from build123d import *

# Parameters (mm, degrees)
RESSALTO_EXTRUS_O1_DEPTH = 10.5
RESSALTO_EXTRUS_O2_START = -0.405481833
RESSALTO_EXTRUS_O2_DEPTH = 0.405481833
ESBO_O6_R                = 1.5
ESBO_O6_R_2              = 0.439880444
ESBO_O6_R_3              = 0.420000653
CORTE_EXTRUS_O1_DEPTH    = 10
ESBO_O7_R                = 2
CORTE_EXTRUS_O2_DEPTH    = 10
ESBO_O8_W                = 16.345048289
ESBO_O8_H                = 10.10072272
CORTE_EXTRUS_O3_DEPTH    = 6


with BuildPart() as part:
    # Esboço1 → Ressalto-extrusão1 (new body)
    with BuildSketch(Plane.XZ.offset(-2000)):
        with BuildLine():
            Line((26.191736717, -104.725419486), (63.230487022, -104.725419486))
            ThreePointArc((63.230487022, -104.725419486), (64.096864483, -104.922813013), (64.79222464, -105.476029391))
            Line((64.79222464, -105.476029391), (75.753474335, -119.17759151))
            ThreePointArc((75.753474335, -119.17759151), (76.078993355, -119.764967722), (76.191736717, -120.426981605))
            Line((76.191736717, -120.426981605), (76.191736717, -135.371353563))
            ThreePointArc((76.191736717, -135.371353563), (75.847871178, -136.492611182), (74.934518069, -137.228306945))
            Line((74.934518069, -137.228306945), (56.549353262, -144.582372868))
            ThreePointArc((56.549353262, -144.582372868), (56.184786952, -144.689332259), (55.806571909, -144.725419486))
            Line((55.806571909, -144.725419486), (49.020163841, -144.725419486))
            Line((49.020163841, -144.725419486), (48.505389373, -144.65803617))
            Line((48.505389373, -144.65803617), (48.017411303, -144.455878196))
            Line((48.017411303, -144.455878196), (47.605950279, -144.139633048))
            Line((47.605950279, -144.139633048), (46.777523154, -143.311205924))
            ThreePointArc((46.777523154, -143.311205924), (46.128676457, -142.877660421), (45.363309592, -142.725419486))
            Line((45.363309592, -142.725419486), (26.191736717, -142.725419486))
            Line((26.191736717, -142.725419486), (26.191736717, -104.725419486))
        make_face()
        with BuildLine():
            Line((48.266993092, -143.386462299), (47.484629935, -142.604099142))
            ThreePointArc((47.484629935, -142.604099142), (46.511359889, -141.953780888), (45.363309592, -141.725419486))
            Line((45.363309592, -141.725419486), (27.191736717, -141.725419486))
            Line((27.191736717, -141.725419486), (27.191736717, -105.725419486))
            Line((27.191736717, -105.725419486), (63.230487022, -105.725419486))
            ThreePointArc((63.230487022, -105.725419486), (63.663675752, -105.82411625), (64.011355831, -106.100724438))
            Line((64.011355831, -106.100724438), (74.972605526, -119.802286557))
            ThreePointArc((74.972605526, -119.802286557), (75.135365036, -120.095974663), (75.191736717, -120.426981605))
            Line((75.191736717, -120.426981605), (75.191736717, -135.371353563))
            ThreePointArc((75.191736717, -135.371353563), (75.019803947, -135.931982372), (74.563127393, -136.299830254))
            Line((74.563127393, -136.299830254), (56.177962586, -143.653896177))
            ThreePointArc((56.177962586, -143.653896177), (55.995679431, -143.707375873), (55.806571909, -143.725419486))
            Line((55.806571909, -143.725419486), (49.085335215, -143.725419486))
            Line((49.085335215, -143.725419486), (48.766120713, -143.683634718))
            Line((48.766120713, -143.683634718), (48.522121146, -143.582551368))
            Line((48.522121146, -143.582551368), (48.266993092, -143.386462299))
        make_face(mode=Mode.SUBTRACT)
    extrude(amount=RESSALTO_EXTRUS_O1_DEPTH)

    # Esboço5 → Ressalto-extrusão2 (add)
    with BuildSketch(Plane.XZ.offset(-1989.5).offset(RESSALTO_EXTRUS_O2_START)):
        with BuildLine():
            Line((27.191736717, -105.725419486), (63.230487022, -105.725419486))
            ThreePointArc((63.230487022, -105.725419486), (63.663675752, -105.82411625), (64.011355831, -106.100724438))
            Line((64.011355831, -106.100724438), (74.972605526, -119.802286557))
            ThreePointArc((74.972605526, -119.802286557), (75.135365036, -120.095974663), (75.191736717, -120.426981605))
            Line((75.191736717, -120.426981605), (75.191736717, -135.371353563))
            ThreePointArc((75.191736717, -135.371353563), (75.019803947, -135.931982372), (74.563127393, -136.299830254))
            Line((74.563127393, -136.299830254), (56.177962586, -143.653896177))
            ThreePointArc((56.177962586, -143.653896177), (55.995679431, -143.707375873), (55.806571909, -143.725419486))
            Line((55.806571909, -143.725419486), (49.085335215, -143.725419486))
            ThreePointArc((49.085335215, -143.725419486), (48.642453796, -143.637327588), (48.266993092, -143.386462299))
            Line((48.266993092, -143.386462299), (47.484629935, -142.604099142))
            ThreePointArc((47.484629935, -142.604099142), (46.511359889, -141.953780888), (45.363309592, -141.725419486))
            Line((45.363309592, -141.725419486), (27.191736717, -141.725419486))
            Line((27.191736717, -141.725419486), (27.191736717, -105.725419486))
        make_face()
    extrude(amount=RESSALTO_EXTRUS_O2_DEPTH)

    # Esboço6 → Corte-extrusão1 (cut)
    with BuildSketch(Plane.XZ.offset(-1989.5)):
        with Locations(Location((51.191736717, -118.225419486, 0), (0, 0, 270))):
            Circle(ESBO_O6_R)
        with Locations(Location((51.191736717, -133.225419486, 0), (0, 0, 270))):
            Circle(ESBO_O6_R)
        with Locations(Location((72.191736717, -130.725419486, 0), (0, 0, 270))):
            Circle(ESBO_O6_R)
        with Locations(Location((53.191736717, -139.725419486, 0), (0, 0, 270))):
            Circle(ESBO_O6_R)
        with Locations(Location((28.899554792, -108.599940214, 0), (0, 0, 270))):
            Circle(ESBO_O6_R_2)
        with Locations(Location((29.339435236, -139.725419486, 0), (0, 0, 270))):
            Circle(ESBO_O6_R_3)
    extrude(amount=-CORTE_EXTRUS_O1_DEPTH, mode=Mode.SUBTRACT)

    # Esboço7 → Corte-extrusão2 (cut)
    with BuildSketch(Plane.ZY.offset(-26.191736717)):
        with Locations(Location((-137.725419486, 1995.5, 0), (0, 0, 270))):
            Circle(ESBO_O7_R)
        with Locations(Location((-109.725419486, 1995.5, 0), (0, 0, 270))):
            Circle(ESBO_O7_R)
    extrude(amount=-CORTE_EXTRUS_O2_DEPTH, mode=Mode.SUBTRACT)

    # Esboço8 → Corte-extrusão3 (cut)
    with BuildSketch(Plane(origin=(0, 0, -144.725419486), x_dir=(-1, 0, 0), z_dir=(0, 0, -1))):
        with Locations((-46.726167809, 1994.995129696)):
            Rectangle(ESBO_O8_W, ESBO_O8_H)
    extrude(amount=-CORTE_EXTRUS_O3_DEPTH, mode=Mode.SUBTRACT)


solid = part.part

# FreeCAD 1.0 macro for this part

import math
import FreeCAD as App
import Part
import Sketcher

V = App.Vector
Q = App.Units.Quantity

doc = App.newDocument("Part")
body = doc.addObject("PartDesign::Body", "Body")

# Sketch on XZ plane
sketch1 = body.newObject("Sketcher::SketchObject", "Sketch")
sketch1.AttachmentSupport = (doc.getObject("XZ_Plane"), [""])
sketch1.MapMode = "FlatFace"
sketch1.AttachmentOffset = App.Placement(V(0, 0, -2000), App.Rotation())
sketch1.addGeometry(Part.LineSegment(V(63.230487, -104.725419, 0), V(26.191737, -104.725419, 0)), False)
sketch1.addGeometry(Part.LineSegment(V(26.191737, -104.725419, 0), V(26.191737, -142.725419, 0)), False)
sketch1.addGeometry(Part.LineSegment(V(26.191737, -142.725419, 0), V(45.36331, -142.725419, 0)), False)
sketch1.addGeometry(Part.ArcOfCircle(Part.Circle(V(45.36331, -144.725419, 0), V(0, 0, 1), 2), math.radians(45), math.radians(90)), False)
sketch1.addGeometry(Part.LineSegment(V(46.777523, -143.311206, 0), V(47.60595, -144.139633, 0)), False)
sketch1.addGeometry(Part.LineSegment(V(47.60595, -144.139633, 0), V(48.017411, -144.455878, 0)), False)
sketch1.addGeometry(Part.LineSegment(V(48.017411, -144.455878, 0), V(48.505389, -144.658036, 0)), False)
sketch1.addGeometry(Part.LineSegment(V(48.505389, -144.658036, 0), V(49.020164, -144.725419, 0)), False)
sketch1.addGeometry(Part.LineSegment(V(49.020164, -144.725419, 0), V(55.806572, -144.725419, 0)), False)
sketch1.addGeometry(Part.ArcOfCircle(Part.Circle(V(55.806572, -142.725419, 0), V(0, 0, 1), 2), math.radians(-90), math.radians(-68.198591)), False)
sketch1.addGeometry(Part.LineSegment(V(56.549353, -144.582373, 0), V(74.934518, -137.228307, 0)), False)
sketch1.addGeometry(Part.ArcOfCircle(Part.Circle(V(74.191737, -135.371354, 0), V(0, 0, 1), 2), math.radians(-68.198591), math.radians(0)), False)
sketch1.addGeometry(Part.LineSegment(V(76.191737, -135.371354, 0), V(76.191737, -120.426982, 0)), False)
sketch1.addGeometry(Part.ArcOfCircle(Part.Circle(V(74.191737, -120.426982, 0), V(0, 0, 1), 2), math.radians(0), math.radians(38.659808)), False)
sketch1.addGeometry(Part.LineSegment(V(75.753474, -119.177592, 0), V(64.792225, -105.476029, 0)), False)
sketch1.addGeometry(Part.ArcOfCircle(Part.Circle(V(63.230487, -106.725419, 0), V(0, 0, 1), 2), math.radians(38.659808), math.radians(90)), False)
sketch1.addGeometry(Part.LineSegment(V(48.266993, -143.386462, 0), V(47.48463, -142.604099, 0)), False)
sketch1.addGeometry(Part.ArcOfCircle(Part.Circle(V(45.36331, -144.725419, 0), V(0, 0, 1), 3), math.radians(45), math.radians(90)), False)
sketch1.addGeometry(Part.LineSegment(V(45.36331, -141.725419, 0), V(27.191737, -141.725419, 0)), False)
sketch1.addGeometry(Part.LineSegment(V(27.191737, -141.725419, 0), V(27.191737, -105.725419, 0)), False)
sketch1.addGeometry(Part.LineSegment(V(27.191737, -105.725419, 0), V(63.230487, -105.725419, 0)), False)
sketch1.addGeometry(Part.ArcOfCircle(Part.Circle(V(63.230487, -106.725419, 0), V(0, 0, 1), 1), math.radians(38.659808), math.radians(90)), False)
sketch1.addGeometry(Part.LineSegment(V(64.011356, -106.100724, 0), V(74.972606, -119.802287, 0)), False)
sketch1.addGeometry(Part.ArcOfCircle(Part.Circle(V(74.191737, -120.426982, 0), V(0, 0, 1), 1), math.radians(0), math.radians(38.659808)), False)
sketch1.addGeometry(Part.LineSegment(V(75.191737, -120.426982, 0), V(75.191737, -135.371354, 0)), False)
sketch1.addGeometry(Part.ArcOfCircle(Part.Circle(V(74.191737, -135.371354, 0), V(0, 0, 1), 1), math.radians(-68.19859), math.radians(0)), False)
sketch1.addGeometry(Part.LineSegment(V(74.563127, -136.29983, 0), V(56.177963, -143.653896, 0)), False)
sketch1.addGeometry(Part.ArcOfCircle(Part.Circle(V(55.806572, -142.725419, 0), V(0, 0, 1), 1), math.radians(-90), math.radians(-68.19859)), False)
sketch1.addGeometry(Part.LineSegment(V(55.806572, -143.725419, 0), V(49.085335, -143.725419, 0)), False)
sketch1.addGeometry(Part.LineSegment(V(49.085335, -143.725419, 0), V(48.766121, -143.683635, 0)), False)
sketch1.addGeometry(Part.LineSegment(V(48.766121, -143.683635, 0), V(48.522121, -143.582551, 0)), False)
sketch1.addGeometry(Part.LineSegment(V(48.522121, -143.582551, 0), V(48.266993, -143.386462, 0)), False)
sketch1.addConstraint(Sketcher.Constraint("Coincident", 0, 2, 1, 1))
sketch1.addConstraint(Sketcher.Constraint("Coincident", 1, 2, 2, 1))
sketch1.addConstraint(Sketcher.Constraint("Coincident", 2, 2, 3, 2))
sketch1.addConstraint(Sketcher.Constraint("Coincident", 3, 1, 4, 1))
sketch1.addConstraint(Sketcher.Constraint("Coincident", 4, 2, 5, 1))
sketch1.addConstraint(Sketcher.Constraint("Coincident", 5, 2, 6, 1))
sketch1.addConstraint(Sketcher.Constraint("Coincident", 6, 2, 7, 1))
sketch1.addConstraint(Sketcher.Constraint("Coincident", 7, 2, 8, 1))
sketch1.addConstraint(Sketcher.Constraint("Coincident", 8, 2, 9, 1))
sketch1.addConstraint(Sketcher.Constraint("Coincident", 9, 2, 10, 1))
sketch1.addConstraint(Sketcher.Constraint("Coincident", 10, 2, 11, 1))
sketch1.addConstraint(Sketcher.Constraint("Coincident", 11, 2, 12, 1))
sketch1.addConstraint(Sketcher.Constraint("Coincident", 12, 2, 13, 1))
sketch1.addConstraint(Sketcher.Constraint("Coincident", 13, 2, 14, 1))
sketch1.addConstraint(Sketcher.Constraint("Coincident", 14, 2, 15, 1))
sketch1.addConstraint(Sketcher.Constraint("Coincident", 15, 2, 0, 1))
sketch1.addConstraint(Sketcher.Constraint("Coincident", 16, 2, 17, 1))
sketch1.addConstraint(Sketcher.Constraint("Coincident", 17, 2, 18, 1))
sketch1.addConstraint(Sketcher.Constraint("Coincident", 18, 2, 19, 1))
sketch1.addConstraint(Sketcher.Constraint("Coincident", 19, 2, 20, 1))
sketch1.addConstraint(Sketcher.Constraint("Coincident", 20, 2, 21, 2))
sketch1.addConstraint(Sketcher.Constraint("Coincident", 21, 1, 22, 1))
sketch1.addConstraint(Sketcher.Constraint("Coincident", 22, 2, 23, 2))
sketch1.addConstraint(Sketcher.Constraint("Coincident", 23, 1, 24, 1))
sketch1.addConstraint(Sketcher.Constraint("Coincident", 24, 2, 25, 2))
sketch1.addConstraint(Sketcher.Constraint("Coincident", 25, 1, 26, 1))
sketch1.addConstraint(Sketcher.Constraint("Coincident", 26, 2, 27, 2))
sketch1.addConstraint(Sketcher.Constraint("Coincident", 27, 1, 28, 1))
sketch1.addConstraint(Sketcher.Constraint("Coincident", 28, 2, 29, 1))
sketch1.addConstraint(Sketcher.Constraint("Coincident", 29, 2, 30, 1))
sketch1.addConstraint(Sketcher.Constraint("Coincident", 30, 2, 31, 1))
sketch1.addConstraint(Sketcher.Constraint("Coincident", 31, 2, 16, 1))
sketch1.addConstraint(Sketcher.Constraint("Horizontal", 0))
sketch1.addConstraint(Sketcher.Constraint("Vertical", 1))
sketch1.addConstraint(Sketcher.Constraint("Horizontal", 2))
sketch1.addConstraint(Sketcher.Constraint("Horizontal", 8))
sketch1.addConstraint(Sketcher.Constraint("Vertical", 12))
sketch1.addConstraint(Sketcher.Constraint("Horizontal", 18))
sketch1.addConstraint(Sketcher.Constraint("Vertical", 19))
sketch1.addConstraint(Sketcher.Constraint("Horizontal", 20))
sketch1.addConstraint(Sketcher.Constraint("Vertical", 24))
sketch1.addConstraint(Sketcher.Constraint("Horizontal", 28))
sketch1.addConstraint(Sketcher.Constraint("Coincident", 17, 3, 3, 3))
sketch1.addConstraint(Sketcher.Constraint("Coincident", 21, 3, 15, 3))
sketch1.addConstraint(Sketcher.Constraint("Coincident", 23, 3, 13, 3))
sketch1.addConstraint(Sketcher.Constraint("Coincident", 25, 3, 11, 3))
sketch1.addConstraint(Sketcher.Constraint("Coincident", 27, 3, 9, 3))
sketch1.addConstraint(Sketcher.Constraint("Radius", 3, 2.0))
sketch1.addConstraint(Sketcher.Constraint("Radius", 9, 2.0))
sketch1.addConstraint(Sketcher.Constraint("Radius", 11, 2.0))
sketch1.addConstraint(Sketcher.Constraint("Radius", 13, 2.0))
sketch1.addConstraint(Sketcher.Constraint("Radius", 15, 2.0))
sketch1.addConstraint(Sketcher.Constraint("Radius", 17, 3.0))
sketch1.addConstraint(Sketcher.Constraint("Radius", 21, 1.0))
sketch1.addConstraint(Sketcher.Constraint("Radius", 23, 1.0))
sketch1.addConstraint(Sketcher.Constraint("Radius", 27, 1.0))
sketch1.addConstraint(Sketcher.Constraint("DistanceY", 1, 2, 1, 1, 38.0))
sketch1.addConstraint(Sketcher.Constraint("DistanceY", 3, 3, 9, 3, 2.0))
sketch1.addConstraint(Sketcher.Constraint("DistanceX", 1, 2, 18, 2, 1.0))
sketch1.addConstraint(Sketcher.Constraint("DistanceY", 4, 2, 29, 2, 0.455998))
sketch1.addConstraint(Sketcher.Constraint("DistanceX", 30, 2, 29, 2, 0.244))
sketch1.addConstraint(Sketcher.Constraint("DistanceX", 0, 2, 0, 1, 37.03875))
sketch1.addConstraint(Sketcher.Constraint("DistanceX", 8, 1, 8, 2, 6.786408))
sketch1.addConstraint(Sketcher.Constraint("DistanceX", 20, 1, 20, 2, 36.03875))
sketch1.addConstraint(Sketcher.Constraint("DistanceY", 12, 1, 12, 2, 14.944372))
sketch1.addConstraint(Sketcher.Constraint("DistanceY", 24, 2, 24, 1, 14.944372))
sketch1.addConstraint(Sketcher.Constraint("DistanceY", 16, 2, -1, 1, 142.604099))
sketch1.addConstraint(Sketcher.Constraint("DistanceX", 17, 3, 5, 2, 2.654102))
sketch1.addConstraint(Sketcher.Constraint("DistanceX", 2, 2, 5, 2, 2.654102))
sketch1.addConstraint(Sketcher.Constraint("DistanceX", 7, 2, 26, 2, 7.157799))
sketch1.addConstraint(Sketcher.Constraint("DistanceY", 6, 2, 29, 2, 0.974401))
sketch1.addConstraint(Sketcher.Constraint("Distance", 5, 0.518952))
sketch1.addConstraint(Sketcher.Constraint("Distance", 10, 19.801428))
sketch1.addConstraint(Sketcher.Constraint("Distance", 14, 17.546561))
sketch1.addConstraint(Sketcher.Constraint("Distance", 16, 1.106429))
sketch1.addConstraint(Sketcher.Constraint("Distance", 22, 17.546561))
sketch1.addConstraint(Sketcher.Constraint("Distance", 26, 19.801428))
sketch1.addConstraint(Sketcher.Constraint("Distance", 30, 0.264109))
sketch1.addConstraint(Sketcher.Constraint("Distance", 31, 0.321778))
sketch1.addConstraint(Sketcher.Constraint("DistanceX", 2, 1, 2, 2, 19.171573))
sketch1.addConstraint(Sketcher.Constraint("DistanceX", 18, 2, 18, 1, 18.171573))
sketch1.addConstraint(Sketcher.Constraint("DistanceX", 28, 2, 28, 1, 6.721237))
sketch1.addConstraint(Sketcher.Constraint("DistanceX", -1, 1, 3, 3, 45.36331))
sketch1.addConstraint(Sketcher.Constraint("DistanceY", 3, 3, -1, 1, 144.725419))
sketch1.addConstraint(Sketcher.Constraint("DistanceX", -1, 1, 9, 3, 55.806572))
sketch1.addConstraint(Sketcher.Constraint("DistanceY", 13, 3, -1, 1, 120.426982))
sketch1.addConstraint(Sketcher.Constraint("DistanceX", -1, 1, 4, 2, 47.60595))
sketch1.addConstraint(Sketcher.Constraint("DistanceY", 5, 2, -1, 1, 144.455878))
sketch1.addConstraint(Sketcher.Constraint("DistanceX", -1, 1, 6, 2, 48.505389))
sketch1.addConstraint(Sketcher.Constraint("DistanceX", -1, 1, 8, 2, 55.806572))
sketch1.addConstraint(Sketcher.Constraint("DistanceX", -1, 1, 10, 2, 74.934518))
sketch1.addConstraint(Sketcher.Constraint("DistanceY", 12, 2, -1, 1, 120.426982))
sketch1.addConstraint(Sketcher.Constraint("DistanceY", 13, 2, -1, 1, 119.177592))
sketch1.addConstraint(Sketcher.Constraint("DistanceY", 14, 2, -1, 1, 105.476029))
sketch1.addConstraint(Sketcher.Constraint("DistanceY", 23, 1, -1, 1, 120.426982))
sketch1.addConstraint(Sketcher.Constraint("DistanceY", 25, 1, -1, 1, 136.29983))
sketch1.addConstraint(Sketcher.Constraint("DistanceX", -1, 1, 27, 1, 55.806572))
sketch1.addConstraint(Sketcher.Constraint("DistanceX", -1, 1, 29, 2, 48.766121))
sketch1.addConstraint(Sketcher.Constraint("DistanceY", 11, 3, 13, 3, 14.944372))
sketch1.addConstraint(Sketcher.Constraint("DistanceX", 3, 1, 9, 3, 9.029049))
sketch1.addConstraint(Sketcher.Constraint("DistanceX", 20, 2, 21, 1, 0.780869))
pad1 = body.newObject("PartDesign::Pad", "Pad")
pad1.Profile = sketch1
pad1.Length = 10.5

# Sketch on XZ plane
sketch2 = body.newObject("Sketcher::SketchObject", "Sketch001")
sketch2.AttachmentSupport = (doc.getObject("XZ_Plane"), [""])
sketch2.MapMode = "FlatFace"
sketch2.AttachmentOffset = App.Placement(V(0, 0, -1989.905482), App.Rotation())
sketch2.addGeometry(Part.LineSegment(V(63.23, -105.73, 0), V(27.19, -105.73, 0)), False)
sketch2.addGeometry(Part.LineSegment(V(27.19, -105.73, 0), V(27.19, -141.73, 0)), False)
sketch2.addGeometry(Part.LineSegment(V(27.19, -141.73, 0), V(45.36, -141.73, 0)), False)
sketch2.addGeometry(Part.ArcOfCircle(Part.Circle(V(45.36, -144.73, 0), V(0, 0, 1), 3), math.radians(45), math.radians(90)), False)
sketch2.addGeometry(Part.LineSegment(V(47.48, -142.6, 0), V(48.27, -143.39, 0)), False)
sketch2.addGeometry(Part.ArcOfCircle(Part.Circle(V(49.09, -142.57, 0), V(0, 0, 1), 1.16), math.radians(-135), math.radians(-90)), False)
sketch2.addGeometry(Part.LineSegment(V(49.09, -143.73, 0), V(55.81, -143.73, 0)), False)
sketch2.addGeometry(Part.ArcOfCircle(Part.Circle(V(55.81, -142.73, 0), V(0, 0, 1), 1), math.radians(-90), math.radians(-68)), False)
sketch2.addGeometry(Part.LineSegment(V(56.18, -143.65, 0), V(74.56, -136.3, 0)), False)
sketch2.addGeometry(Part.ArcOfCircle(Part.Circle(V(74.19, -135.37, 0), V(0, 0, 1), 1), math.radians(-68), math.radians(0)), False)
sketch2.addGeometry(Part.LineSegment(V(75.19, -135.37, 0), V(75.19, -120.43, 0)), False)
sketch2.addGeometry(Part.ArcOfCircle(Part.Circle(V(74.19, -120.43, 0), V(0, 0, 1), 1), math.radians(0), math.radians(39)), False)
sketch2.addGeometry(Part.LineSegment(V(74.97, -119.8, 0), V(64.01, -106.1, 0)), False)
sketch2.addGeometry(Part.ArcOfCircle(Part.Circle(V(63.23, -106.73, 0), V(0, 0, 1), 1), math.radians(39), math.radians(90)), False)
sketch2.addConstraint(Sketcher.Constraint("Coincident", 0, 2, 1, 1))
sketch2.addConstraint(Sketcher.Constraint("Coincident", 1, 2, 2, 1))
sketch2.addConstraint(Sketcher.Constraint("Tangent", 2, 2, 3, 2))
sketch2.addConstraint(Sketcher.Constraint("Tangent", 3, 1, 4, 1))
sketch2.addConstraint(Sketcher.Constraint("Coincident", 4, 2, 5, 1))
sketch2.addConstraint(Sketcher.Constraint("Tangent", 5, 2, 6, 1))
sketch2.addConstraint(Sketcher.Constraint("Tangent", 6, 2, 7, 1))
sketch2.addConstraint(Sketcher.Constraint("Tangent", 7, 2, 8, 1))
sketch2.addConstraint(Sketcher.Constraint("Tangent", 8, 2, 9, 1))
sketch2.addConstraint(Sketcher.Constraint("Tangent", 9, 2, 10, 1))
sketch2.addConstraint(Sketcher.Constraint("Tangent", 10, 2, 11, 1))
sketch2.addConstraint(Sketcher.Constraint("Tangent", 11, 2, 12, 1))
sketch2.addConstraint(Sketcher.Constraint("Tangent", 12, 2, 13, 1))
sketch2.addConstraint(Sketcher.Constraint("Tangent", 13, 2, 0, 1))
sketch2.addConstraint(Sketcher.Constraint("Horizontal", 0))
sketch2.addConstraint(Sketcher.Constraint("Vertical", 1))
sketch2.addConstraint(Sketcher.Constraint("Horizontal", 2))
sketch2.addConstraint(Sketcher.Constraint("Horizontal", 6))
sketch2.addConstraint(Sketcher.Constraint("Vertical", 10))
sketch2.addConstraint(Sketcher.Constraint("Equal", 7, 9))
sketch2.addConstraint(Sketcher.Constraint("Equal", 9, 11))
sketch2.addConstraint(Sketcher.Constraint("Equal", 11, 13))
sketch2.addConstraint(Sketcher.Constraint("Radius", 3, 3.0))
sketch2.addConstraint(Sketcher.Constraint("Radius", 7, 1.0))
sketch2.addConstraint(Sketcher.Constraint("DistanceY", 1, 2, 1, 1, 36.0))
sketch2.addConstraint(Sketcher.Constraint("Angle", 4, Q("-45 deg")))
sketch2.addConstraint(Sketcher.Constraint("DistanceY", 3, 3, 7, 3, 2.0))
sketch2.addConstraint(Sketcher.Constraint("DistanceX", 0, 2, 11, 3, 47.0))
sketch2.addConstraint(Sketcher.Constraint("Radius", 5, 1.157338))
sketch2.addConstraint(Sketcher.Constraint("DistanceX", 0, 2, 0, 1, 36.03875))
sketch2.addConstraint(Sketcher.Constraint("DistanceY", 10, 1, 10, 2, 14.944372))
sketch2.addConstraint(Sketcher.Constraint("DistanceY", 3, 1, -1, 1, 142.604099))
sketch2.addConstraint(Sketcher.Constraint("DistanceX", 5, 3, 9, 3, 25.106401))
sketch2.addConstraint(Sketcher.Constraint("DistanceY", 5, 3, 11, 3, 22.1411))
sketch2.addConstraint(Sketcher.Constraint("Distance", 4, 1.106429))
sketch2.addConstraint(Sketcher.Constraint("Distance", 8, 19.801428))
sketch2.addConstraint(Sketcher.Constraint("DistanceX", -1, 1, 3, 3, 45.36331))
pad2 = body.newObject("PartDesign::Pad", "Pad001")
pad2.Profile = sketch2
pad2.Length = 0.405482

# Sketch on XZ plane
sketch3 = body.newObject("Sketcher::SketchObject", "Sketch002")
sketch3.AttachmentSupport = (doc.getObject("XZ_Plane"), [""])
sketch3.MapMode = "FlatFace"
sketch3.AttachmentOffset = App.Placement(V(0, 0, -1989.5), App.Rotation())
sketch3.addGeometry(Part.Circle(V(51.19, -118.23, 0), V(0, 0, 1), 1.5), False)
sketch3.addGeometry(Part.Circle(V(51.19, -133.23, 0), V(0, 0, 1), 1.5), False)
sketch3.addGeometry(Part.Circle(V(72.19, -130.73, 0), V(0, 0, 1), 1.5), False)
sketch3.addGeometry(Part.Circle(V(53.19, -139.73, 0), V(0, 0, 1), 1.5), False)
sketch3.addGeometry(Part.Circle(V(28.9, -108.6, 0), V(0, 0, 1), 0.44), False)
sketch3.addGeometry(Part.Circle(V(29.34, -139.73, 0), V(0, 0, 1), 0.42), False)
sketch3.addConstraint(Sketcher.Constraint("Equal", 0, 1))
sketch3.addConstraint(Sketcher.Constraint("Equal", 1, 2))
sketch3.addConstraint(Sketcher.Constraint("Equal", 2, 3))
sketch3.addConstraint(Sketcher.Constraint("Horizontal", 3, 3, 5, 3))
sketch3.addConstraint(Sketcher.Constraint("Vertical", 0, 3, 1, 3))
sketch3.addConstraint(Sketcher.Constraint("Diameter", 0, 3.0))
sketch3.addConstraint(Sketcher.Constraint("Diameter", 5, 0.840001))
sketch3.addConstraint(Sketcher.Constraint("DistanceY", 1, 3, 0, 3, 15.0))
sketch3.addConstraint(Sketcher.Constraint("DistanceX", 1, 3, 2, 3, 21.0))
sketch3.addConstraint(Sketcher.Constraint("DistanceX", 1, 3, 3, 3, 2.0))
sketch3.addConstraint(Sketcher.Constraint("DistanceY", 3, 3, 2, 3, 9.0))
sketch3.addConstraint(Sketcher.Constraint("DistanceY", 1, 3, 2, 3, 2.5))
sketch3.addConstraint(Sketcher.Constraint("Diameter", 4, 0.879761))
sketch3.addConstraint(Sketcher.Constraint("DistanceX", 5, 3, 1, 3, 21.852301))
sketch3.addConstraint(Sketcher.Constraint("DistanceY", 0, 3, -1, 1, 118.225419))
sketch3.addConstraint(Sketcher.Constraint("DistanceY", 4, 3, -1, 1, 108.59994))
sketch3.addConstraint(Sketcher.Constraint("DistanceX", 4, 3, 0, 3, 22.292182))
sketch3.addConstraint(Sketcher.Constraint("DistanceX", -1, 1, 0, 3, 51.191737))
pocket1 = body.newObject("PartDesign::Pocket", "Pocket")
pocket1.Profile = sketch3
pocket1.Length = 10

# Sketch on YZ plane
sketch4 = body.newObject("Sketcher::SketchObject", "Sketch003")
sketch4.AttachmentSupport = (doc.getObject("YZ_Plane"), [""])
sketch4.MapMode = "FlatFace"
sketch4.AttachmentOffset = App.Placement(V(0, 0, 26.191737), App.Rotation())
sketch4.addGeometry(Part.Circle(V(1995.5, -137.7, 0), V(0, 0, 1), 2), False)
sketch4.addGeometry(Part.Circle(V(1995.5, -109.7, 0), V(0, 0, 1), 2), False)
sketch4.addConstraint(Sketcher.Constraint("Equal", 0, 1))
sketch4.addConstraint(Sketcher.Constraint("Vertical", 0, 3, 1, 3))
sketch4.addConstraint(Sketcher.Constraint("Diameter", 0, 4.0))
sketch4.addConstraint(Sketcher.Constraint("DistanceY", 0, 3, 1, 3, 28.0))
sketch4.addConstraint(Sketcher.Constraint("DistanceX", -1, 1, 0, 3, 1995.5))
sketch4.addConstraint(Sketcher.Constraint("DistanceY", 0, 3, -1, 1, 137.725419))
pocket2 = body.newObject("PartDesign::Pocket", "Pocket001")
pocket2.Profile = sketch4
pocket2.Length = 10
pocket2.Reversed = True

# Sketch on XY plane
sketch5 = body.newObject("Sketcher::SketchObject", "Sketch004")
sketch5.AttachmentSupport = (doc.getObject("XY_Plane"), [""])
sketch5.MapMode = "FlatFace"
sketch5.AttachmentOffset = App.Placement(V(0, 0, -144.725419), App.Rotation())
sketch5.addGeometry(Part.LineSegment(V(55, 2000, 0), V(55, 1990, 0)), False)
sketch5.addGeometry(Part.LineSegment(V(55, 1990, 0), V(39, 1990, 0)), False)
sketch5.addGeometry(Part.LineSegment(V(39, 1990, 0), V(39, 2000, 0)), False)
sketch5.addGeometry(Part.LineSegment(V(39, 2000, 0), V(55, 2000, 0)), False)
sketch5.addConstraint(Sketcher.Constraint("Coincident", 0, 2, 1, 1))
sketch5.addConstraint(Sketcher.Constraint("Coincident", 1, 2, 2, 1))
sketch5.addConstraint(Sketcher.Constraint("Coincident", 2, 2, 3, 1))
sketch5.addConstraint(Sketcher.Constraint("Coincident", 3, 2, 0, 1))
sketch5.addConstraint(Sketcher.Constraint("Vertical", 0))
sketch5.addConstraint(Sketcher.Constraint("Horizontal", 1))
sketch5.addConstraint(Sketcher.Constraint("Vertical", 2))
sketch5.addConstraint(Sketcher.Constraint("Horizontal", 3))
sketch5.addConstraint(Sketcher.Constraint("DistanceX", 1, 2, 1, 1, 16.345048))
sketch5.addConstraint(Sketcher.Constraint("DistanceY", 0, 2, 0, 1, 10.100723))
sketch5.addConstraint(Sketcher.Constraint("DistanceX", -1, 1, 0, 2, 54.898692))
sketch5.addConstraint(Sketcher.Constraint("DistanceY", -1, 1, 0, 2, 1989.944768))
pocket3 = body.newObject("PartDesign::Pocket", "Pocket002")
pocket3.Profile = sketch5
pocket3.Length = 6
pocket3.Reversed = True

doc.recompute()
